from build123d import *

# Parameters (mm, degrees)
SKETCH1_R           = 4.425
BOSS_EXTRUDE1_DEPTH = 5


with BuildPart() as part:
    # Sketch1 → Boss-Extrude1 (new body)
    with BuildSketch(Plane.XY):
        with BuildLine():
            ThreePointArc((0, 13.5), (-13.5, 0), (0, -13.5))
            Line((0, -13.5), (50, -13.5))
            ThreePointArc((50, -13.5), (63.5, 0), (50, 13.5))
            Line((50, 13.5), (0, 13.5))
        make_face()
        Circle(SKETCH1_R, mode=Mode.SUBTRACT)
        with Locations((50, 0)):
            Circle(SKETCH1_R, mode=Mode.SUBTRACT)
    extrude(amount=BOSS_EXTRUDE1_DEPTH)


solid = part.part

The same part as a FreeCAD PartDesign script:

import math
import FreeCAD as App
import Part
import Sketcher

V = App.Vector

doc = App.newDocument("Part")
body = doc.addObject("PartDesign::Body", "Body")

sketch1 = body.newObject("Sketcher::SketchObject", "Sketch")
sketch1.AttachmentSupport = (doc.getObject("XY_Plane"), [""])
sketch1.MapMode = "FlatFace"
sketch1.addGeometry([
    Part.ArcOfCircle(Part.Circle(V(0, 0, 0), V(0, 0, 1), 13.5), math.radians(90), math.radians(270)),
    Part.LineSegment(V(0, -13.5, 0), V(50, -13.5, 0)),
    Part.ArcOfCircle(Part.Circle(V(50, 0, 0), V(0, 0, 1), 13.5), math.radians(-90), math.radians(90)),
    Part.LineSegment(V(50, 13.5, 0), V(0, 13.5, 0)),
    Part.Circle(V(0, 0, 0), V(0, 0, 1), 4.4),
    Part.Circle(V(50, 0, 0), V(0, 0, 1), 4.4),
], False)
sketch1.addConstraint([
    Sketcher.Constraint("Tangent", 0, 2, 1, 1),
    Sketcher.Constraint("Tangent", 1, 2, 2, 1),
    Sketcher.Constraint("Tangent", 2, 2, 3, 1),
    Sketcher.Constraint("Tangent", 3, 2, 0, 1),
    Sketcher.Constraint("Horizontal", 1),
    Sketcher.Constraint("Horizontal", 3),
    Sketcher.Constraint("Coincident", 0, 3, -1, 1),
    Sketcher.Constraint("Coincident", 4, 3, -1, 1),
    Sketcher.Constraint("Coincident", 5, 3, 2, 3),
    Sketcher.Constraint("Equal", 4, 5),
    Sketcher.Constraint("Radius", 0, 13.5),
    Sketcher.Constraint("Diameter", 4, 8.85),
    Sketcher.Constraint("DistanceX", 1, 1, 1, 2, 50.0),
])
pad1 = body.newObject("PartDesign::Pad", "Pad")
pad1.Profile = sketch1
pad1.Length = 5

doc.recompute()
